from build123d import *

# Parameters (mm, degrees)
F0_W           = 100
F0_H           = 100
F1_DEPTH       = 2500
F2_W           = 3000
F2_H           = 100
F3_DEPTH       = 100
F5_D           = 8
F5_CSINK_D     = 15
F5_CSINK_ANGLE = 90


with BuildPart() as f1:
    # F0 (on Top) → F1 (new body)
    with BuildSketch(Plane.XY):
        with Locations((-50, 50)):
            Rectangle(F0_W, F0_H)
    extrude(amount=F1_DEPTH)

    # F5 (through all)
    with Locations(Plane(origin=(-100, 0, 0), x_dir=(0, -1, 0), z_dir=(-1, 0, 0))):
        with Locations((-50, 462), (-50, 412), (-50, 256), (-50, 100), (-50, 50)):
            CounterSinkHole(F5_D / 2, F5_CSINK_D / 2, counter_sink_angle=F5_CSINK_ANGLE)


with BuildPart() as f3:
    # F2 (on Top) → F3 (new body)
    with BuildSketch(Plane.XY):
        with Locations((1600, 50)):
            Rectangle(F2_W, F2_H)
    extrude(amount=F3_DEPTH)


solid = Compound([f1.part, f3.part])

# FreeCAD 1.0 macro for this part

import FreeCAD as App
import Part
import Sketcher

V = App.Vector

doc = App.newDocument("Part")
body = doc.addObject("PartDesign::Body", "Body")

sketch1 = body.newObject("Sketcher::SketchObject", "Sketch")
sketch1.AttachmentSupport = (doc.getObject("XY_Plane"), [""])
sketch1.MapMode = "FlatFace"
sketch1.addGeometry([
    Part.LineSegment(V(-100, 100, 0), V(-100, 0, 0)),
    Part.LineSegment(V(-100, 0, 0), V(0, 0, 0)),
    Part.LineSegment(V(0, 0, 0), V(0, 100, 0)),
    Part.LineSegment(V(0, 100, 0), V(-100, 100, 0)),
], False)
sketch1.addConstraint([
    Sketcher.Constraint("Coincident", 0, 2, 1, 1),
    Sketcher.Constraint("Coincident", 1, 2, 2, 1),
    Sketcher.Constraint("Coincident", 2, 2, 3, 1),
    Sketcher.Constraint("Coincident", 3, 2, 0, 1),
    Sketcher.Constraint("Vertical", 0),
    Sketcher.Constraint("Horizontal", 1),
    Sketcher.Constraint("Vertical", 2),
    Sketcher.Constraint("Horizontal", 3),
    Sketcher.Constraint("Coincident", 1, 2, -1, 1),
    Sketcher.Constraint("Equal", 3, 0),
    Sketcher.Constraint("DistanceX", 1, 1, 1, 2, 100.0),
])
pad1 = body.newObject("PartDesign::Pad", "Pad")
pad1.Profile = sketch1
pad1.Length = 2500

sketch2 = body.newObject("Sketcher::SketchObject", "Sketch001")
sketch2.AttachmentSupport = (doc.getObject("YZ_Plane"), [""])
sketch2.MapMode = "FlatFace"
sketch2.AttachmentOffset = App.Placement(V(0, 0, -100), App.Rotation())
sketch2.addGeometry([
    Part.Circle(V(50, 462, 0), V(0, 0, 1), 4),
    Part.Circle(V(50, 412, 0), V(0, 0, 1), 4),
    Part.Circle(V(50, 256, 0), V(0, 0, 1), 4),
    Part.Circle(V(50, 100, 0), V(0, 0, 1), 4),
    Part.Circle(V(50, 50, 0), V(0, 0, 1), 4),
], False)
sketch2.addConstraint([
    Sketcher.Constraint("Equal", 0, 1),
    Sketcher.Constraint("Equal", 1, 2),
    Sketcher.Constraint("Equal", 2, 3),
    Sketcher.Constraint("Equal", 3, 4),
    Sketcher.Constraint("Vertical", 0, 3, 1, 3),
    Sketcher.Constraint("Vertical", 1, 3, 2, 3),
    Sketcher.Constraint("Vertical", 2, 3, 3, 3),
    Sketcher.Constraint("Vertical", 3, 3, 4, 3),
    Sketcher.Constraint("Diameter", 0, 8.0),
    Sketcher.Constraint("DistanceX", -1, 1, 0, 3, 50.0),
    Sketcher.Constraint("DistanceY", -1, 1, 0, 3, 462.0),
    Sketcher.Constraint("DistanceY", -1, 1, 1, 3, 412.0),
    Sketcher.Constraint("DistanceY", -1, 1, 2, 3, 256.0),
    Sketcher.Constraint("DistanceY", -1, 1, 3, 3, 100.0),
    Sketcher.Constraint("DistanceY", -1, 1, 4, 3, 50.0),
])
doc.recompute()
hole = body.newObject("PartDesign::Hole", "Hole")
hole.Profile = sketch2
hole.ThreadType = "None"
hole.Diameter = 8
hole.DepthType = "ThroughAll"
hole.HoleCutType = "Countersink"
hole.HoleCutDiameter = 15
hole.HoleCutCountersinkAngle = 90
hole.Reversed = True
body2 = doc.addObject("PartDesign::Body", "Body001")

sketch3 = body2.newObject("Sketcher::SketchObject", "Sketch002")
sketch3.AttachmentSupport = (doc.getObject("XY_Plane001"), [""])
sketch3.MapMode = "FlatFace"
sketch3.addGeometry([
    Part.LineSegment(V(100, 100, 0), V(100, 0, 0)),
    Part.LineSegment(V(100, 0, 0), V(3100, 0, 0)),
    Part.LineSegment(V(3100, 0, 0), V(3100, 100, 0)),
    Part.LineSegment(V(3100, 100, 0), V(100, 100, 0)),
], False)
sketch3.addConstraint([
    Sketcher.Constraint("Coincident", 0, 2, 1, 1),
    Sketcher.Constraint("Coincident", 1, 2, 2, 1),
    Sketcher.Constraint("Coincident", 2, 2, 3, 1),
    Sketcher.Constraint("Coincident", 3, 2, 0, 1),
    Sketcher.Constraint("Vertical", 0),
    Sketcher.Constraint("Horizontal", 1),
    Sketcher.Constraint("Vertical", 2),
    Sketcher.Constraint("Horizontal", 3),
    Sketcher.Constraint("PointOnObject", 0, 2, -1),
    Sketcher.Constraint("DistanceX", 1, 1, 1, 2, 3000.0),
    Sketcher.Constraint("DistanceY", 0, 2, 0, 1, 100.0),
    Sketcher.Constraint("DistanceX", -1, 1, 0, 2, 100.0),
])
pad2 = body2.newObject("PartDesign::Pad", "Pad001")
pad2.Profile = sketch3
pad2.Length = 100

doc.recompute()
